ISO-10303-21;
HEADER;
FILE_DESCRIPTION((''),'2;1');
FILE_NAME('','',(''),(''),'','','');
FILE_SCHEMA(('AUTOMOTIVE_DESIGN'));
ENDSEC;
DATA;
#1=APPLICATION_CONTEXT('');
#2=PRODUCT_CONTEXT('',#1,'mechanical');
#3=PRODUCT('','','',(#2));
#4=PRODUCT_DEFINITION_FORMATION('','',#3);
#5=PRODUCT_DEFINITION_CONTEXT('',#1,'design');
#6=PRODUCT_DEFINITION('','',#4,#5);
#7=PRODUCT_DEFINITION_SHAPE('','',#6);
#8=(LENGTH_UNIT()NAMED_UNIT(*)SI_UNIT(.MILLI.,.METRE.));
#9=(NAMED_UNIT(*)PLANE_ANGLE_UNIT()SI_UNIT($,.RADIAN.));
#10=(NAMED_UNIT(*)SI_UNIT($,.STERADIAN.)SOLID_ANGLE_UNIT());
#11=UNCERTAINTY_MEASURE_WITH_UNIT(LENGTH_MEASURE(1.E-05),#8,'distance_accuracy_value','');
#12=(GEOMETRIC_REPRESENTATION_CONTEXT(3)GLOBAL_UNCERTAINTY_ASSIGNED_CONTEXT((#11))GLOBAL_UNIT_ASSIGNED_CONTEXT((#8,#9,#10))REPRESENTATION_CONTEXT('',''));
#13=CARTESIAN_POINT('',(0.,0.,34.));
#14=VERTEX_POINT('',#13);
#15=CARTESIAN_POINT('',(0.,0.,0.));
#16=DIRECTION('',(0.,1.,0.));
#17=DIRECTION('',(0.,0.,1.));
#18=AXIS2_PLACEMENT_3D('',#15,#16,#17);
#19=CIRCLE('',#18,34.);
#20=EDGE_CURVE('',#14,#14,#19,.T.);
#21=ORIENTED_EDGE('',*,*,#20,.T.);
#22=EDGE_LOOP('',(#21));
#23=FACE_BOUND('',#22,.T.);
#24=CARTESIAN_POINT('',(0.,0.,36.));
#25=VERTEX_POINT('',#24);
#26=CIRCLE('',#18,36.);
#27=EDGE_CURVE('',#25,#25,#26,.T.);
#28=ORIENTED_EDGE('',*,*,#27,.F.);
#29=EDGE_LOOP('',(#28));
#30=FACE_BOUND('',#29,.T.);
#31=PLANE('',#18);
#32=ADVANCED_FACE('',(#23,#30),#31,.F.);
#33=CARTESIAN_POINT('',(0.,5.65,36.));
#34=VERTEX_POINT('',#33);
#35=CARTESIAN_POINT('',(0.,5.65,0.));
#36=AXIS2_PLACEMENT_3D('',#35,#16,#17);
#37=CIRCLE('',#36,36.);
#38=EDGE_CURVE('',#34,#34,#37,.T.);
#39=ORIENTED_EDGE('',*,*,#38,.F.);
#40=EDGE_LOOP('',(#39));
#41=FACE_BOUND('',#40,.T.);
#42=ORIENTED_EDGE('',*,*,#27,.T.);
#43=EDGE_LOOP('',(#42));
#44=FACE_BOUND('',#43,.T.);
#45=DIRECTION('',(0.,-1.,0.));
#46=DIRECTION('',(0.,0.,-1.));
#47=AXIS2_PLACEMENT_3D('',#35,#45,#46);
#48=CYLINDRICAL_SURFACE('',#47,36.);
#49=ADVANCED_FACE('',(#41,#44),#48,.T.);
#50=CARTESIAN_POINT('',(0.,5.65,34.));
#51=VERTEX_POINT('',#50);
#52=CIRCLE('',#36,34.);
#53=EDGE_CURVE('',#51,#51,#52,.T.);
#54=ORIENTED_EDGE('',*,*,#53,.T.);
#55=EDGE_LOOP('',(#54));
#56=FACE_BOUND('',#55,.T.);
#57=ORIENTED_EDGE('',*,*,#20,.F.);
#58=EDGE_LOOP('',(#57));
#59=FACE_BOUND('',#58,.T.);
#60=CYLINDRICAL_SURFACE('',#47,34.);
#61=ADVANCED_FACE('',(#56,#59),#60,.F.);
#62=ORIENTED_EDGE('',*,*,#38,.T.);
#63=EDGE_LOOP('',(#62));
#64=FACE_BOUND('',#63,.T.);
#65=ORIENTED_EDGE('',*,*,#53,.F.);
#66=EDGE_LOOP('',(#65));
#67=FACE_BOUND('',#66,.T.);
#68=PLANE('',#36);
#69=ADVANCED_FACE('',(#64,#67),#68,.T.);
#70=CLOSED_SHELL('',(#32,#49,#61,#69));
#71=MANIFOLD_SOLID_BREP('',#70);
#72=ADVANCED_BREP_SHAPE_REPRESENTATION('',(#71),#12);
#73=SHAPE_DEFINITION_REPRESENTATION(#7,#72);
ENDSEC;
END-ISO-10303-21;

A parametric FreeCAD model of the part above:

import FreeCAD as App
import Part
import Sketcher

doc = App.newDocument("Part")
params = doc.addObject("Spreadsheet::Sheet", "Params")
for row, (alias, value) in enumerate([
    ("sketch1_diameter", "72 mm"),
    ("sketch1_diameter2", "68 mm"),
    ("pad1_length", "5.65 mm"),
], start=1):
    params.set(f"A{row}", alias)
    params.set(f"B{row}", "=" + value)
    params.setAlias(f"B{row}", alias)

body = doc.addObject("PartDesign::Body", "Body")

# Sketch on XZ plane
sketch1 = body.newObject("Sketcher::SketchObject", "Sketch")
sketch1.AttachmentSupport = (doc.getObject("XZ_Plane"), [""])
sketch1.MapMode = "FlatFace"
sketch1.addGeometry(Part.Circle(App.Vector(0, 0, 0), App.Vector(0, 0, 1), 36), False)
sketch1.addGeometry(Part.Circle(App.Vector(0, 0, 0), App.Vector(0, 0, 1), 34), False)
sketch1.addConstraint(Sketcher.Constraint("Coincident", 0, 3, -1, 1))
sketch1.addConstraint(Sketcher.Constraint("Coincident", 1, 3, -1, 1))
sketch1.addConstraint(Sketcher.Constraint("Diameter", 0, 72.0))
sketch1.addConstraint(Sketcher.Constraint("Diameter", 1, 68.0))
sketch1.setExpression("Constraints[2]", "Params.sketch1_diameter")
sketch1.setExpression("Constraints[3]", "Params.sketch1_diameter2")
pad1 = body.newObject("PartDesign::Pad", "Pad")
pad1.Profile = sketch1
pad1.setExpression("Length", "Params.pad1_length")
pad1.Reversed = True

doc.recompute()
